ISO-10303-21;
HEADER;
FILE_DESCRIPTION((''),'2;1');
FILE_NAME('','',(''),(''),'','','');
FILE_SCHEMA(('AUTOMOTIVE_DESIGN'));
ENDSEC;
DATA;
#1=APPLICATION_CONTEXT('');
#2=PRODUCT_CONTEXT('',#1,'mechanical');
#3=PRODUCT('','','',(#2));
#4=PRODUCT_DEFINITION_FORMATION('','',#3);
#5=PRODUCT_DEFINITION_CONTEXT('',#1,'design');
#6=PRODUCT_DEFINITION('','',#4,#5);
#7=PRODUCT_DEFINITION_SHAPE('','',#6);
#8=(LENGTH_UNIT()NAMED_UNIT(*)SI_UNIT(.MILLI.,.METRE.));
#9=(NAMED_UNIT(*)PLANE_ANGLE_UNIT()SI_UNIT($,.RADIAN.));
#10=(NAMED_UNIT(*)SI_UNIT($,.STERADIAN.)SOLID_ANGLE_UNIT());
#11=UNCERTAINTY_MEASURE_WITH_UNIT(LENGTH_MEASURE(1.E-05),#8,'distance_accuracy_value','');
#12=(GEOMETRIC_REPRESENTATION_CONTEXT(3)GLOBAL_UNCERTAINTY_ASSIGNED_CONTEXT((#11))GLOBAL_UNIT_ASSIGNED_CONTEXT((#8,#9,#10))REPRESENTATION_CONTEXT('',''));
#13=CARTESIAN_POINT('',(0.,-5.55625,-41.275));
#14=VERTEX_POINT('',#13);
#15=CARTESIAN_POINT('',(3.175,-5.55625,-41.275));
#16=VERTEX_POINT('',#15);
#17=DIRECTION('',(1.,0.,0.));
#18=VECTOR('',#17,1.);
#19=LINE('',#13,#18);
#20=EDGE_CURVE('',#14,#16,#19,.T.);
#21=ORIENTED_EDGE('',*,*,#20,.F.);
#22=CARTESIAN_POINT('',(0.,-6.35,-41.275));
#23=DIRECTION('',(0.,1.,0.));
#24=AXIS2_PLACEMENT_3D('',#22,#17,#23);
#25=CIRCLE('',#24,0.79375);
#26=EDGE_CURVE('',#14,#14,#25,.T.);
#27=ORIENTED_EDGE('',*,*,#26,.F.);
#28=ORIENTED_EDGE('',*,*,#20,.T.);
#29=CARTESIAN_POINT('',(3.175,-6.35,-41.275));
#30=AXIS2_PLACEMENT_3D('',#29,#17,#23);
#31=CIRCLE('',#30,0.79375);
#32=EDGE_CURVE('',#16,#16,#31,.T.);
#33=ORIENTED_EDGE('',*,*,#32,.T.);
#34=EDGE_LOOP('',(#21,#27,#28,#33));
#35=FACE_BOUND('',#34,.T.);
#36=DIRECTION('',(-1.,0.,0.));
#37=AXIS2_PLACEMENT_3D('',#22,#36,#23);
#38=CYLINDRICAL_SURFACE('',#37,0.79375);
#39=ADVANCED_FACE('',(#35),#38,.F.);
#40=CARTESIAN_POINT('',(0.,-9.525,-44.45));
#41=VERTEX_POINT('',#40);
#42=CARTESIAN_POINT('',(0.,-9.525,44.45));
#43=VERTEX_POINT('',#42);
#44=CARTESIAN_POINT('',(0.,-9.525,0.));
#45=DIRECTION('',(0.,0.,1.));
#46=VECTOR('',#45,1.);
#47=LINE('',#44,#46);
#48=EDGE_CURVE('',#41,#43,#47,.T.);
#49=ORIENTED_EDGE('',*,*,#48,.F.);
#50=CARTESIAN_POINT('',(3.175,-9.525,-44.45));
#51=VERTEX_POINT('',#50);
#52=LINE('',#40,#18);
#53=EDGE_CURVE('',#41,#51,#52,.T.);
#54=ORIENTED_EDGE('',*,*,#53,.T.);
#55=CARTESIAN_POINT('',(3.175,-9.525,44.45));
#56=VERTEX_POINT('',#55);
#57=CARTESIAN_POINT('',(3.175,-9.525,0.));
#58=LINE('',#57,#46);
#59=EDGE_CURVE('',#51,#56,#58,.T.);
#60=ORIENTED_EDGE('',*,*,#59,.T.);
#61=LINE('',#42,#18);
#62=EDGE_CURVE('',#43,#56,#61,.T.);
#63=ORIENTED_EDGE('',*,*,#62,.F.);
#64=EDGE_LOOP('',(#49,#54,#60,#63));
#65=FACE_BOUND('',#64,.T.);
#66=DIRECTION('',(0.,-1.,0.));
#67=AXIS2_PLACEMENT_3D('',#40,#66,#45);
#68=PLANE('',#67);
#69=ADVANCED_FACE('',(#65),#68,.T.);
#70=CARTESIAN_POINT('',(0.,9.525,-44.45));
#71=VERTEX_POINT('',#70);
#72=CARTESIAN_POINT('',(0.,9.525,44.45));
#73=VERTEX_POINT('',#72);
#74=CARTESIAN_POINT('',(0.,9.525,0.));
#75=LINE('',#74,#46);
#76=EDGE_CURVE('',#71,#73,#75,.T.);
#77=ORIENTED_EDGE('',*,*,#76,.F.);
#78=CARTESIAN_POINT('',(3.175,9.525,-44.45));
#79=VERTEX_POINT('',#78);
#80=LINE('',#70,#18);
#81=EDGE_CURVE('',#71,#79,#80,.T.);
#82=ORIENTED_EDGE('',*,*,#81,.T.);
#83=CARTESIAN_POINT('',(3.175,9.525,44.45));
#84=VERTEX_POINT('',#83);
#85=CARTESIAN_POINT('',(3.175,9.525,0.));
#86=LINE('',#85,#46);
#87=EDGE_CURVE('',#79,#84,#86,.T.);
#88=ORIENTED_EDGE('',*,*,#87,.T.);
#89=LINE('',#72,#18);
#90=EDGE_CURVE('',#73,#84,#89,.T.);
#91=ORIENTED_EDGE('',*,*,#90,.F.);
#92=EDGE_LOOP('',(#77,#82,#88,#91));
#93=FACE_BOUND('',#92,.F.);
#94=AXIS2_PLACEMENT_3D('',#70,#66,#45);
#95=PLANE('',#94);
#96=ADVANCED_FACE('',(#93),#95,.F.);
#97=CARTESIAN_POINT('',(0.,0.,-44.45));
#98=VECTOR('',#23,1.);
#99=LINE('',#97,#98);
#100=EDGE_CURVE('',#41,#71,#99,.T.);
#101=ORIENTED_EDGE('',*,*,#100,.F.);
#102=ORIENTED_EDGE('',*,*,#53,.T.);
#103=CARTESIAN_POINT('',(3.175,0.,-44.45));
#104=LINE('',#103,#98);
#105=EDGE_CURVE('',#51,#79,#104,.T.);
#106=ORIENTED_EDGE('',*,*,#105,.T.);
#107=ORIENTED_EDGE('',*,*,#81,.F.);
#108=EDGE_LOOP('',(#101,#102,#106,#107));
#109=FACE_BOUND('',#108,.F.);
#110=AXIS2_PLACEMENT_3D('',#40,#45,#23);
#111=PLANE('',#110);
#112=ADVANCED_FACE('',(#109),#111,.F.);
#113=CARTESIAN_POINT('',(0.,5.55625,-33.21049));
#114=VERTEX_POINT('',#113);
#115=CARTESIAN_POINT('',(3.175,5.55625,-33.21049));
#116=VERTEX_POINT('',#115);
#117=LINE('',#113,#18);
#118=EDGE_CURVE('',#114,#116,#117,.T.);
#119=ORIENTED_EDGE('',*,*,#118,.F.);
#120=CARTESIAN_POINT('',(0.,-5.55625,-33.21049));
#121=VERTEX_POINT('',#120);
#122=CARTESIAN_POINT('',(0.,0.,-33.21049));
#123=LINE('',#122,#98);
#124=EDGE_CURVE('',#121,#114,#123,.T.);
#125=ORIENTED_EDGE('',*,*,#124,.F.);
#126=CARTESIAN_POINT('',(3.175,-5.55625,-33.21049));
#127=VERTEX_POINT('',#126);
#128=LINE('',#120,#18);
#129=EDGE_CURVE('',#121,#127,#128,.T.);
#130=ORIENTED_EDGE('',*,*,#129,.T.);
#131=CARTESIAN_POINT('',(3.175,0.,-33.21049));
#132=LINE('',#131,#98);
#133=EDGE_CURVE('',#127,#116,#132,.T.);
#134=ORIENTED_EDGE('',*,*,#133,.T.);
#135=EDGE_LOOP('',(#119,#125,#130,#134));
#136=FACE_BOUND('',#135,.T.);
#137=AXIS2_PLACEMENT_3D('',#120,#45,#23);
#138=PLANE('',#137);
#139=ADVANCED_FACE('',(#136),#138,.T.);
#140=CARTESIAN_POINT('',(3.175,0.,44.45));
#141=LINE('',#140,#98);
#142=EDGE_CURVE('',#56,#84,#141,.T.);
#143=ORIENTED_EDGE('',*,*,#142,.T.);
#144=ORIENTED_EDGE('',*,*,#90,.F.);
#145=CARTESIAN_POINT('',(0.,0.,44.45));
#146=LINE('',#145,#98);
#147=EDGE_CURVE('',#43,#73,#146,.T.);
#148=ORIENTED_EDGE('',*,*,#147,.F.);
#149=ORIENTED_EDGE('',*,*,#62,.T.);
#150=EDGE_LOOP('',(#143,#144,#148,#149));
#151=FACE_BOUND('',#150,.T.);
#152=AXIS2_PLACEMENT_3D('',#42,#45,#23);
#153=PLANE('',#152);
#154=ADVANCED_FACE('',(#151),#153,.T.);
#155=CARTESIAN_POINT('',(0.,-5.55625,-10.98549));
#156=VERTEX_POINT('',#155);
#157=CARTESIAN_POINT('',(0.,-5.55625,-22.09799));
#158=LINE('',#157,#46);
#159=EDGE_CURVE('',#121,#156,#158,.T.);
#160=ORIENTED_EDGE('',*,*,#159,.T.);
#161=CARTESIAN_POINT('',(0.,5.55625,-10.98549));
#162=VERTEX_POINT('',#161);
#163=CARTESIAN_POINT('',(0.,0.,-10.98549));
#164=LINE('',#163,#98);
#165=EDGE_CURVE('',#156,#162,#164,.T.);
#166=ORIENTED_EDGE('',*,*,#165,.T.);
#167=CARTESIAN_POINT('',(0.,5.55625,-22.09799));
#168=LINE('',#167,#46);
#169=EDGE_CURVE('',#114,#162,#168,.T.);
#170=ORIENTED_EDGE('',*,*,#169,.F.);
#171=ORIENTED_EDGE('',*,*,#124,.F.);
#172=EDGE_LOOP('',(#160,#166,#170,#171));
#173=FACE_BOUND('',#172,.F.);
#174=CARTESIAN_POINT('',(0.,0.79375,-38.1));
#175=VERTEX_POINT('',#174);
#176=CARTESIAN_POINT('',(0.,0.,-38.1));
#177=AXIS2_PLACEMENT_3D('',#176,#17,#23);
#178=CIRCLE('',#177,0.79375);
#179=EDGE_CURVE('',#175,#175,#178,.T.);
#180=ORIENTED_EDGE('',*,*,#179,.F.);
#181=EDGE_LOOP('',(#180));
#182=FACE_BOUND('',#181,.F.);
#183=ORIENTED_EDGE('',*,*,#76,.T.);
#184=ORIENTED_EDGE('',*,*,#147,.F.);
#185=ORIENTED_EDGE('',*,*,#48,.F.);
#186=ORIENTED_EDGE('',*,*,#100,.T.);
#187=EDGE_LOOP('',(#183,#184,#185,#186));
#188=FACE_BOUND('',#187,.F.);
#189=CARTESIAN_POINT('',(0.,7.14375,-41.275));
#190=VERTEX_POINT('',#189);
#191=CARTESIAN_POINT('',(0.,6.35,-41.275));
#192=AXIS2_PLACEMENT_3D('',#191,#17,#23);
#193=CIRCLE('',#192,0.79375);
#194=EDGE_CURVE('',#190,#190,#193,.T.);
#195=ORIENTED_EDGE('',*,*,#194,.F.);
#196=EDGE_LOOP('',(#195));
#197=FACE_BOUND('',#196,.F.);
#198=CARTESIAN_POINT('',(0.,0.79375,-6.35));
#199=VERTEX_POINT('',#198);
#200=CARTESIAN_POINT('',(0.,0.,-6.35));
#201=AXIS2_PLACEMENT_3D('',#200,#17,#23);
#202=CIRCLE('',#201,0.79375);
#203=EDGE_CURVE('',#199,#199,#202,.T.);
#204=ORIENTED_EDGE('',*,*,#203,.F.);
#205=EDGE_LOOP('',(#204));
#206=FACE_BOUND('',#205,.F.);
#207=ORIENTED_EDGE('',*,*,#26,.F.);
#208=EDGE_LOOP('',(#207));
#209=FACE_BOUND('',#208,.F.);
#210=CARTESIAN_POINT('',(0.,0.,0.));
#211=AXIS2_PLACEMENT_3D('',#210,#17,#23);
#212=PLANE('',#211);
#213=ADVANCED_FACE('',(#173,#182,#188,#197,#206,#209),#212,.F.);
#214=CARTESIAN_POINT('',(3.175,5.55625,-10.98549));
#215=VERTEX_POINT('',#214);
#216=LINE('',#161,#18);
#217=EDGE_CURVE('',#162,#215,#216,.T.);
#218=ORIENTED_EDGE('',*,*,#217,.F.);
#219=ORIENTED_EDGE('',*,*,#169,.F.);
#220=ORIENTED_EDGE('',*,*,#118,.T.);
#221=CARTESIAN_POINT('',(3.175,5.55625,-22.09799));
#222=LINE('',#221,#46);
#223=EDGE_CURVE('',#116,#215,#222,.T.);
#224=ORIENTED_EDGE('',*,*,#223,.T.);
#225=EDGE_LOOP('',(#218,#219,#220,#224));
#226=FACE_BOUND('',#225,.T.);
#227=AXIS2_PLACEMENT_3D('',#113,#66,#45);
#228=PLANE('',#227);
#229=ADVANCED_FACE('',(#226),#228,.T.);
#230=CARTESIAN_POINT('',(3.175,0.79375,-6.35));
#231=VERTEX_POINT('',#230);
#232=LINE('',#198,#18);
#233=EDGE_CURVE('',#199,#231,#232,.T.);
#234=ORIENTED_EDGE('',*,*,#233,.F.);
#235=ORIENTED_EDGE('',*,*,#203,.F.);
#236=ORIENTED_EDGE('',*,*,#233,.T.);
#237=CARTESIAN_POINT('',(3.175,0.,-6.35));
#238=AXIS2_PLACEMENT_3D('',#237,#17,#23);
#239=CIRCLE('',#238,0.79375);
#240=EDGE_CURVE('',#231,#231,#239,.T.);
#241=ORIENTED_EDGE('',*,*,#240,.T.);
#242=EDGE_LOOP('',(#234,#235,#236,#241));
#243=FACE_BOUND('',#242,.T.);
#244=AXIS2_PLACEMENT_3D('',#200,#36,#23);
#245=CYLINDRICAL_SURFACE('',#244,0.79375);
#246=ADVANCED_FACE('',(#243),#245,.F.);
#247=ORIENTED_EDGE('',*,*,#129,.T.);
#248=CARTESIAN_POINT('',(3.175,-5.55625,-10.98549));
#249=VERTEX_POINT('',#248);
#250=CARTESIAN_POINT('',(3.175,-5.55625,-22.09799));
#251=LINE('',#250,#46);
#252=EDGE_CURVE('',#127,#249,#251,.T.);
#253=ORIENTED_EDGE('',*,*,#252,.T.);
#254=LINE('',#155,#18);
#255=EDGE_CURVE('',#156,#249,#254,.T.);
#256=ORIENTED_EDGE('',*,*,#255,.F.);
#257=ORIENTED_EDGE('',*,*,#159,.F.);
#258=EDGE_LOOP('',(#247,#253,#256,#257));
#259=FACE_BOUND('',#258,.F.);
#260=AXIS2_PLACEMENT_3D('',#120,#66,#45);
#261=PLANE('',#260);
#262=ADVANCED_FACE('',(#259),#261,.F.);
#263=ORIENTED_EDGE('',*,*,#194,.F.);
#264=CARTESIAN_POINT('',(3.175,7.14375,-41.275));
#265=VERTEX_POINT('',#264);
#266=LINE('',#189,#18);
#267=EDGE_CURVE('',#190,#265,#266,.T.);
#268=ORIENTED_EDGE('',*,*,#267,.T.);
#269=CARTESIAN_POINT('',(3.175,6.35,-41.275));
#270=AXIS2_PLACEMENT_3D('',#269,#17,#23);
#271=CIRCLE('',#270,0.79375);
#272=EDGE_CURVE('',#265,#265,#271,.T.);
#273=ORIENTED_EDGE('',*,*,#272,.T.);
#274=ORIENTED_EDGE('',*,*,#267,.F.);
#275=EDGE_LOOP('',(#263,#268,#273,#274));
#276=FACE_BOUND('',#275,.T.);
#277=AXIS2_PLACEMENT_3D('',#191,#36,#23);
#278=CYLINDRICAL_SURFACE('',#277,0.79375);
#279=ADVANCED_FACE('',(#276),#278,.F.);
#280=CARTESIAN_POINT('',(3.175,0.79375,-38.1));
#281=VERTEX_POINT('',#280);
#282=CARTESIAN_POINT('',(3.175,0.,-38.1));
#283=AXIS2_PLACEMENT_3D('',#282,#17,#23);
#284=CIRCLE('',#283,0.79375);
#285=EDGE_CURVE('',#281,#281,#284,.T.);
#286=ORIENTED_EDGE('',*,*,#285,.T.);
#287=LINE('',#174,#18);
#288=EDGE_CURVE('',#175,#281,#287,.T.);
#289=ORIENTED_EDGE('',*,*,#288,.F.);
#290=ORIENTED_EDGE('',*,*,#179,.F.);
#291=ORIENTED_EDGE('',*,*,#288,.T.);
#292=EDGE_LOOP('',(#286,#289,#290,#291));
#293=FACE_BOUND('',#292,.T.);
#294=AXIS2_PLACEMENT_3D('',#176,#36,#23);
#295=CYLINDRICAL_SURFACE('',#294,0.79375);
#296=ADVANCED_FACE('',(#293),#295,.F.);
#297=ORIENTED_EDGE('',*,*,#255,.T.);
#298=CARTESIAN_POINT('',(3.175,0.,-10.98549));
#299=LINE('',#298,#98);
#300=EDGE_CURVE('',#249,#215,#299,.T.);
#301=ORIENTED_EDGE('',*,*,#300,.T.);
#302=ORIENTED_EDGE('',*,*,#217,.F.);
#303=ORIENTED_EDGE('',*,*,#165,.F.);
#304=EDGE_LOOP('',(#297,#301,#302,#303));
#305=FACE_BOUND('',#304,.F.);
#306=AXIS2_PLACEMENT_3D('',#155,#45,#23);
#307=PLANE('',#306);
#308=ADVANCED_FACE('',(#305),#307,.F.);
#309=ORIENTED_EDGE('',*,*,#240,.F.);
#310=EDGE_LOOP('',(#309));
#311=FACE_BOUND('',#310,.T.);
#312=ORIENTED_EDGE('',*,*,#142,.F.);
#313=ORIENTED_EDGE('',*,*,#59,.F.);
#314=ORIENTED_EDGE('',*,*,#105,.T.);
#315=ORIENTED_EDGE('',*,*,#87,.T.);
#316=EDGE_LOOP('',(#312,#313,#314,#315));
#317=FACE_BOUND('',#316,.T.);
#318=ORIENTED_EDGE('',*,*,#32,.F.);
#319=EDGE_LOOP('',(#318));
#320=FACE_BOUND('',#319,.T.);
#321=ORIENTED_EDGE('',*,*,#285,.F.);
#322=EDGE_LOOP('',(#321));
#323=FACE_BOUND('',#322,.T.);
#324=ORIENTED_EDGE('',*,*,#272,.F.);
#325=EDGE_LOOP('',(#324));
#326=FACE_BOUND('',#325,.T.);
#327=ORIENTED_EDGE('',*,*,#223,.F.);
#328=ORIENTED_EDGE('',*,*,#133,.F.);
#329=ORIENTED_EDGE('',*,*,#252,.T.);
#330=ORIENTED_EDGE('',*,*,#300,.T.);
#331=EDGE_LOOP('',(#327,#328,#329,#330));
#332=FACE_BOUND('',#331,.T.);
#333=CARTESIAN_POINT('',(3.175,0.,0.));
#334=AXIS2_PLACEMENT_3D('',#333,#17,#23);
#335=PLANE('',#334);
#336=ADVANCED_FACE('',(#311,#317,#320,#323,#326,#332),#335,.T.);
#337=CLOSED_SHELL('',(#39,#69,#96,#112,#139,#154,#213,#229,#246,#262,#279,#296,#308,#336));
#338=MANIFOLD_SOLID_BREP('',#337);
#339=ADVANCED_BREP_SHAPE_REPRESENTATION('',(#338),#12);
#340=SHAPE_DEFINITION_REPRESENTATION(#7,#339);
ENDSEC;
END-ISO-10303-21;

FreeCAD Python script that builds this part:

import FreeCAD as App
import Part
import Sketcher
Q = App.Units.Quantity


def add_polygon(sketch, points):
    """Adds a closed chain of lines whose ends are joined by coincident constraints."""
    first, n = sketch.GeometryCount, len(points)
    for a, b in zip(points, points[1:] + points[:1]):
        sketch.addGeometry(Part.LineSegment(App.Vector(*a, 0), App.Vector(*b, 0)), False)
    for i in range(n):
        sketch.addConstraint(Sketcher.Constraint("Coincident", first + i, 2, first + (i + 1) % n, 1))

doc = App.newDocument("Part")
body = doc.addObject("PartDesign::Body", "Body")

# Sketch on YZ plane
sketch1 = doc.addObject("Sketcher::SketchObject", "Sketch")
body.addObject(sketch1)
sketch1.AttachmentSupport = (doc.YZ_Plane, [""])
sketch1.MapMode = "FlatFace"
add_polygon(sketch1, [(-9.525, 44.45), (-9.525, -44.45), (9.525, -44.45), (9.525, 44.45)])  # lines 0-3
sketch1.addGeometry(Part.Circle(App.Vector(-6.35, -41.275, 0), App.Vector(0, 0, 1), 0.79375), False)  # 4
sketch1.addGeometry(Part.Circle(App.Vector(0, -38.1, 0), App.Vector(0, 0, 1), 0.79375), False)  # 5
sketch1.addGeometry(Part.Circle(App.Vector(6.35, -41.275, 0), App.Vector(0, 0, 1), 0.79375), False)  # 6
add_polygon(sketch1, [(5.55625, -33.21049), (-5.55625, -33.21049), (-5.55625, -10.98549), (5.55625, -10.98549)])  # lines 7-10
sketch1.addGeometry(Part.Circle(App.Vector(0, -6.35, 0), App.Vector(0, 0, 1), 0.79375), False)  # 11
sketch1.addConstraint(Sketcher.Constraint("Vertical", 0))
sketch1.addConstraint(Sketcher.Constraint("Horizontal", 1))
sketch1.addConstraint(Sketcher.Constraint("Vertical", 2))
sketch1.addConstraint(Sketcher.Constraint("Horizontal", 3))
sketch1.addConstraint(Sketcher.Constraint("Horizontal", 7))
sketch1.addConstraint(Sketcher.Constraint("Vertical", 8))
sketch1.addConstraint(Sketcher.Constraint("Horizontal", 9))
sketch1.addConstraint(Sketcher.Constraint("Vertical", 10))
sketch1.addConstraint(Sketcher.Constraint("Equal", 4, 5))
sketch1.addConstraint(Sketcher.Constraint("Equal", 5, 6))
sketch1.addConstraint(Sketcher.Constraint("Equal", 6, 11))
sketch1.addConstraint(Sketcher.Constraint("Symmetric", 0, 2, 2, 2, -1, 1))
sketch1.addConstraint(Sketcher.Constraint("Symmetric", 4, 3, 6, 3, -2))
sketch1.addConstraint(Sketcher.Constraint("PointOnObject", 5, 3, -2))
sketch1.addConstraint(Sketcher.Constraint("PointOnObject", 11, 3, -2))
sketch1.addConstraint(Sketcher.Constraint("Diameter", 4, Q("0.0625 in")))
sketch1.addConstraint(Sketcher.Constraint("DistanceY", 0, 2, 0, 1, Q("3.5 in")))
sketch1.addConstraint(Sketcher.Constraint("DistanceY", 11, 3, 2, 2, Q("2 in")))
sketch1.addConstraint(Sketcher.Constraint("DistanceX", 1, 1, 1, 2, Q("0.75 in")))
sketch1.addConstraint(Sketcher.Constraint("DistanceY", 5, 3, -1, 1, Q("1.5 in")))
sketch1.addConstraint(Sketcher.Constraint("DistanceX", 4, 3, 6, 3, Q("0.5 in")))
sketch1.addConstraint(Sketcher.Constraint("DistanceX", 7, 2, 7, 1, Q("0.4375 in")))
sketch1.addConstraint(Sketcher.Constraint("DistanceY", 8, 1, 8, 2, Q("0.875 in")))
sketch1.addConstraint(Sketcher.Constraint("DistanceY", 4, 3, -1, 1, Q("1.625 in")))
sketch1.addConstraint(Sketcher.Constraint("DistanceX", 7, 2, -1, 1, Q("0.21875 in")))
sketch1.addConstraint(Sketcher.Constraint("DistanceY", 7, 2, -1, 1, 33.21049))
pad1 = doc.addObject("PartDesign::Pad", "Pad")
body.addObject(pad1)
pad1.Profile = sketch1
pad1.Length = Q("0.125 in")

doc.recompute()
